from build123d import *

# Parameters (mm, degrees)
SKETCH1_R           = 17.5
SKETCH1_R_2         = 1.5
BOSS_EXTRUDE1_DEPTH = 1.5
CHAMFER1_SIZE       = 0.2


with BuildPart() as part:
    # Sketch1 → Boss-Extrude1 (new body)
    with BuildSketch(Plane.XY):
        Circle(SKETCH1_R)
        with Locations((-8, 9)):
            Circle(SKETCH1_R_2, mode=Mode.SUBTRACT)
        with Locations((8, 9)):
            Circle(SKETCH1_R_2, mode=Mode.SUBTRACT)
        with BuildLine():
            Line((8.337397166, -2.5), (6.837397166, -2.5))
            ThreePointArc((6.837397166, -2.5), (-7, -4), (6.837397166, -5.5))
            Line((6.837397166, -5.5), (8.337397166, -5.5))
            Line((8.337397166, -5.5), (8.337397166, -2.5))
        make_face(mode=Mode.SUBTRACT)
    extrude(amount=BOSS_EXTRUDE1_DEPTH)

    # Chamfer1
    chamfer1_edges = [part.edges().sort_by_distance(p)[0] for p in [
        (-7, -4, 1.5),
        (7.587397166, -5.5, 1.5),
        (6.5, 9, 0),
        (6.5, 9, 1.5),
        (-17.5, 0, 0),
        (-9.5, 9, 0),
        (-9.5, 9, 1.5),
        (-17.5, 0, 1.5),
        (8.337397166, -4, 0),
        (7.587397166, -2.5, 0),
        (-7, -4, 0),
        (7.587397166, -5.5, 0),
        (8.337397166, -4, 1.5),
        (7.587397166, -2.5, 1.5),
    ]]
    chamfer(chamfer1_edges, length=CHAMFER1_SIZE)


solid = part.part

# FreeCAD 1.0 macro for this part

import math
import FreeCAD as App
import Part
import Sketcher
from FreeCAD import Vector
Q = App.Units.Quantity


def edges_at(feature, points):
    """Names of the edges that pass closest to the given points."""
    edges = feature.Shape.Edges
    near = lambda p: min(range(len(edges)), key=lambda i: edges[i].distToShape(Part.Vertex(*p))[0])
    return sorted({f"Edge{near(p) + 1}" for p in points})

doc = App.newDocument("Part")
body = doc.addObject("PartDesign::Body", "Body")

sketch1 = body.newObject("Sketcher::SketchObject", "Sketch")
sketch1.AttachmentSupport = (doc.getObject("XY_Plane"), [""])
sketch1.MapMode = "FlatFace"
sketch1.addGeometry([
    Part.Circle(Vector(0, 0, 0), Vector(0, 0, 1), 17.5),
    Part.LineSegment(Vector(6.8, -2.5, 0), Vector(8.3, -2.5, 0)),
    Part.LineSegment(Vector(8.3, -2.5, 0), Vector(8.3, -5.5, 0)),
    Part.LineSegment(Vector(8.3, -5.5, 0), Vector(6.8, -5.5, 0)),
    Part.ArcOfCircle(Part.Circle(Vector(0, -4, 0), Vector(0, 0, 1), 7), math.radians(12), math.radians(348)),
    Part.Circle(Vector(-8, 9, 0), Vector(0, 0, 1), 1.5),
    Part.Circle(Vector(8, 9, 0), Vector(0, 0, 1), 1.5),
], False)
sketch1.addConstraint([
    Sketcher.Constraint("Coincident", 1, 2, 2, 1),
    Sketcher.Constraint("Coincident", 2, 2, 3, 1),
    Sketcher.Constraint("Coincident", 3, 2, 4, 2),
    Sketcher.Constraint("Coincident", 4, 1, 1, 1),
    Sketcher.Constraint("Horizontal", 1),
    Sketcher.Constraint("Vertical", 2),
    Sketcher.Constraint("Horizontal", 3),
    Sketcher.Constraint("Coincident", 0, 3, -1, 1),
    Sketcher.Constraint("Equal", 5, 6),
    Sketcher.Constraint("Symmetric", 5, 3, 6, 3, -2),
    Sketcher.Constraint("PointOnObject", 4, 3, -2),
    Sketcher.Constraint("Vertical", 3, 2, 4, 1),
    Sketcher.Constraint("Diameter", 0, Q("35 mm")),
    Sketcher.Constraint("Diameter", 5, Q("3 mm")),
    Sketcher.Constraint("Radius", 4, Q("7 mm")),
    Sketcher.Constraint("DistanceY", 2, 2, 2, 1, Q("3 mm")),
    Sketcher.Constraint("DistanceX", 1, 1, 1, 2, Q("1.5 mm")),
    Sketcher.Constraint("DistanceY", 4, 3, -1, 1, Q("4 mm")),
    Sketcher.Constraint("DistanceX", 5, 3, -1, 1, Q("8 mm")),
    Sketcher.Constraint("DistanceY", -1, 1, 5, 3, Q("9 mm")),
])
pad1 = body.newObject("PartDesign::Pad", "Pad")
pad1.Profile = sketch1
pad1.Length = 1.5
doc.recompute()

chamfer = body.newObject("PartDesign::Chamfer", "Chamfer")
chamfer.Base = (pad1, edges_at(pad1, [
    (-7, -4, 1.5),
    (7.587, -5.5, 1.5),
    (6.5, 9, 0),
    (6.5, 9, 1.5),
    (-17.5, 0, 0),
    (-9.5, 9, 0),
    (-9.5, 9, 1.5),
    (-17.5, 0, 1.5),
    (8.337, -4, 0),
    (7.587, -2.5, 0),
    (-7, -4, 0),
    (7.587, -5.5, 0),
    (8.337, -4, 1.5),
    (7.587, -2.5, 1.5),
]))
chamfer.Size = 0.2

doc.recompute()
